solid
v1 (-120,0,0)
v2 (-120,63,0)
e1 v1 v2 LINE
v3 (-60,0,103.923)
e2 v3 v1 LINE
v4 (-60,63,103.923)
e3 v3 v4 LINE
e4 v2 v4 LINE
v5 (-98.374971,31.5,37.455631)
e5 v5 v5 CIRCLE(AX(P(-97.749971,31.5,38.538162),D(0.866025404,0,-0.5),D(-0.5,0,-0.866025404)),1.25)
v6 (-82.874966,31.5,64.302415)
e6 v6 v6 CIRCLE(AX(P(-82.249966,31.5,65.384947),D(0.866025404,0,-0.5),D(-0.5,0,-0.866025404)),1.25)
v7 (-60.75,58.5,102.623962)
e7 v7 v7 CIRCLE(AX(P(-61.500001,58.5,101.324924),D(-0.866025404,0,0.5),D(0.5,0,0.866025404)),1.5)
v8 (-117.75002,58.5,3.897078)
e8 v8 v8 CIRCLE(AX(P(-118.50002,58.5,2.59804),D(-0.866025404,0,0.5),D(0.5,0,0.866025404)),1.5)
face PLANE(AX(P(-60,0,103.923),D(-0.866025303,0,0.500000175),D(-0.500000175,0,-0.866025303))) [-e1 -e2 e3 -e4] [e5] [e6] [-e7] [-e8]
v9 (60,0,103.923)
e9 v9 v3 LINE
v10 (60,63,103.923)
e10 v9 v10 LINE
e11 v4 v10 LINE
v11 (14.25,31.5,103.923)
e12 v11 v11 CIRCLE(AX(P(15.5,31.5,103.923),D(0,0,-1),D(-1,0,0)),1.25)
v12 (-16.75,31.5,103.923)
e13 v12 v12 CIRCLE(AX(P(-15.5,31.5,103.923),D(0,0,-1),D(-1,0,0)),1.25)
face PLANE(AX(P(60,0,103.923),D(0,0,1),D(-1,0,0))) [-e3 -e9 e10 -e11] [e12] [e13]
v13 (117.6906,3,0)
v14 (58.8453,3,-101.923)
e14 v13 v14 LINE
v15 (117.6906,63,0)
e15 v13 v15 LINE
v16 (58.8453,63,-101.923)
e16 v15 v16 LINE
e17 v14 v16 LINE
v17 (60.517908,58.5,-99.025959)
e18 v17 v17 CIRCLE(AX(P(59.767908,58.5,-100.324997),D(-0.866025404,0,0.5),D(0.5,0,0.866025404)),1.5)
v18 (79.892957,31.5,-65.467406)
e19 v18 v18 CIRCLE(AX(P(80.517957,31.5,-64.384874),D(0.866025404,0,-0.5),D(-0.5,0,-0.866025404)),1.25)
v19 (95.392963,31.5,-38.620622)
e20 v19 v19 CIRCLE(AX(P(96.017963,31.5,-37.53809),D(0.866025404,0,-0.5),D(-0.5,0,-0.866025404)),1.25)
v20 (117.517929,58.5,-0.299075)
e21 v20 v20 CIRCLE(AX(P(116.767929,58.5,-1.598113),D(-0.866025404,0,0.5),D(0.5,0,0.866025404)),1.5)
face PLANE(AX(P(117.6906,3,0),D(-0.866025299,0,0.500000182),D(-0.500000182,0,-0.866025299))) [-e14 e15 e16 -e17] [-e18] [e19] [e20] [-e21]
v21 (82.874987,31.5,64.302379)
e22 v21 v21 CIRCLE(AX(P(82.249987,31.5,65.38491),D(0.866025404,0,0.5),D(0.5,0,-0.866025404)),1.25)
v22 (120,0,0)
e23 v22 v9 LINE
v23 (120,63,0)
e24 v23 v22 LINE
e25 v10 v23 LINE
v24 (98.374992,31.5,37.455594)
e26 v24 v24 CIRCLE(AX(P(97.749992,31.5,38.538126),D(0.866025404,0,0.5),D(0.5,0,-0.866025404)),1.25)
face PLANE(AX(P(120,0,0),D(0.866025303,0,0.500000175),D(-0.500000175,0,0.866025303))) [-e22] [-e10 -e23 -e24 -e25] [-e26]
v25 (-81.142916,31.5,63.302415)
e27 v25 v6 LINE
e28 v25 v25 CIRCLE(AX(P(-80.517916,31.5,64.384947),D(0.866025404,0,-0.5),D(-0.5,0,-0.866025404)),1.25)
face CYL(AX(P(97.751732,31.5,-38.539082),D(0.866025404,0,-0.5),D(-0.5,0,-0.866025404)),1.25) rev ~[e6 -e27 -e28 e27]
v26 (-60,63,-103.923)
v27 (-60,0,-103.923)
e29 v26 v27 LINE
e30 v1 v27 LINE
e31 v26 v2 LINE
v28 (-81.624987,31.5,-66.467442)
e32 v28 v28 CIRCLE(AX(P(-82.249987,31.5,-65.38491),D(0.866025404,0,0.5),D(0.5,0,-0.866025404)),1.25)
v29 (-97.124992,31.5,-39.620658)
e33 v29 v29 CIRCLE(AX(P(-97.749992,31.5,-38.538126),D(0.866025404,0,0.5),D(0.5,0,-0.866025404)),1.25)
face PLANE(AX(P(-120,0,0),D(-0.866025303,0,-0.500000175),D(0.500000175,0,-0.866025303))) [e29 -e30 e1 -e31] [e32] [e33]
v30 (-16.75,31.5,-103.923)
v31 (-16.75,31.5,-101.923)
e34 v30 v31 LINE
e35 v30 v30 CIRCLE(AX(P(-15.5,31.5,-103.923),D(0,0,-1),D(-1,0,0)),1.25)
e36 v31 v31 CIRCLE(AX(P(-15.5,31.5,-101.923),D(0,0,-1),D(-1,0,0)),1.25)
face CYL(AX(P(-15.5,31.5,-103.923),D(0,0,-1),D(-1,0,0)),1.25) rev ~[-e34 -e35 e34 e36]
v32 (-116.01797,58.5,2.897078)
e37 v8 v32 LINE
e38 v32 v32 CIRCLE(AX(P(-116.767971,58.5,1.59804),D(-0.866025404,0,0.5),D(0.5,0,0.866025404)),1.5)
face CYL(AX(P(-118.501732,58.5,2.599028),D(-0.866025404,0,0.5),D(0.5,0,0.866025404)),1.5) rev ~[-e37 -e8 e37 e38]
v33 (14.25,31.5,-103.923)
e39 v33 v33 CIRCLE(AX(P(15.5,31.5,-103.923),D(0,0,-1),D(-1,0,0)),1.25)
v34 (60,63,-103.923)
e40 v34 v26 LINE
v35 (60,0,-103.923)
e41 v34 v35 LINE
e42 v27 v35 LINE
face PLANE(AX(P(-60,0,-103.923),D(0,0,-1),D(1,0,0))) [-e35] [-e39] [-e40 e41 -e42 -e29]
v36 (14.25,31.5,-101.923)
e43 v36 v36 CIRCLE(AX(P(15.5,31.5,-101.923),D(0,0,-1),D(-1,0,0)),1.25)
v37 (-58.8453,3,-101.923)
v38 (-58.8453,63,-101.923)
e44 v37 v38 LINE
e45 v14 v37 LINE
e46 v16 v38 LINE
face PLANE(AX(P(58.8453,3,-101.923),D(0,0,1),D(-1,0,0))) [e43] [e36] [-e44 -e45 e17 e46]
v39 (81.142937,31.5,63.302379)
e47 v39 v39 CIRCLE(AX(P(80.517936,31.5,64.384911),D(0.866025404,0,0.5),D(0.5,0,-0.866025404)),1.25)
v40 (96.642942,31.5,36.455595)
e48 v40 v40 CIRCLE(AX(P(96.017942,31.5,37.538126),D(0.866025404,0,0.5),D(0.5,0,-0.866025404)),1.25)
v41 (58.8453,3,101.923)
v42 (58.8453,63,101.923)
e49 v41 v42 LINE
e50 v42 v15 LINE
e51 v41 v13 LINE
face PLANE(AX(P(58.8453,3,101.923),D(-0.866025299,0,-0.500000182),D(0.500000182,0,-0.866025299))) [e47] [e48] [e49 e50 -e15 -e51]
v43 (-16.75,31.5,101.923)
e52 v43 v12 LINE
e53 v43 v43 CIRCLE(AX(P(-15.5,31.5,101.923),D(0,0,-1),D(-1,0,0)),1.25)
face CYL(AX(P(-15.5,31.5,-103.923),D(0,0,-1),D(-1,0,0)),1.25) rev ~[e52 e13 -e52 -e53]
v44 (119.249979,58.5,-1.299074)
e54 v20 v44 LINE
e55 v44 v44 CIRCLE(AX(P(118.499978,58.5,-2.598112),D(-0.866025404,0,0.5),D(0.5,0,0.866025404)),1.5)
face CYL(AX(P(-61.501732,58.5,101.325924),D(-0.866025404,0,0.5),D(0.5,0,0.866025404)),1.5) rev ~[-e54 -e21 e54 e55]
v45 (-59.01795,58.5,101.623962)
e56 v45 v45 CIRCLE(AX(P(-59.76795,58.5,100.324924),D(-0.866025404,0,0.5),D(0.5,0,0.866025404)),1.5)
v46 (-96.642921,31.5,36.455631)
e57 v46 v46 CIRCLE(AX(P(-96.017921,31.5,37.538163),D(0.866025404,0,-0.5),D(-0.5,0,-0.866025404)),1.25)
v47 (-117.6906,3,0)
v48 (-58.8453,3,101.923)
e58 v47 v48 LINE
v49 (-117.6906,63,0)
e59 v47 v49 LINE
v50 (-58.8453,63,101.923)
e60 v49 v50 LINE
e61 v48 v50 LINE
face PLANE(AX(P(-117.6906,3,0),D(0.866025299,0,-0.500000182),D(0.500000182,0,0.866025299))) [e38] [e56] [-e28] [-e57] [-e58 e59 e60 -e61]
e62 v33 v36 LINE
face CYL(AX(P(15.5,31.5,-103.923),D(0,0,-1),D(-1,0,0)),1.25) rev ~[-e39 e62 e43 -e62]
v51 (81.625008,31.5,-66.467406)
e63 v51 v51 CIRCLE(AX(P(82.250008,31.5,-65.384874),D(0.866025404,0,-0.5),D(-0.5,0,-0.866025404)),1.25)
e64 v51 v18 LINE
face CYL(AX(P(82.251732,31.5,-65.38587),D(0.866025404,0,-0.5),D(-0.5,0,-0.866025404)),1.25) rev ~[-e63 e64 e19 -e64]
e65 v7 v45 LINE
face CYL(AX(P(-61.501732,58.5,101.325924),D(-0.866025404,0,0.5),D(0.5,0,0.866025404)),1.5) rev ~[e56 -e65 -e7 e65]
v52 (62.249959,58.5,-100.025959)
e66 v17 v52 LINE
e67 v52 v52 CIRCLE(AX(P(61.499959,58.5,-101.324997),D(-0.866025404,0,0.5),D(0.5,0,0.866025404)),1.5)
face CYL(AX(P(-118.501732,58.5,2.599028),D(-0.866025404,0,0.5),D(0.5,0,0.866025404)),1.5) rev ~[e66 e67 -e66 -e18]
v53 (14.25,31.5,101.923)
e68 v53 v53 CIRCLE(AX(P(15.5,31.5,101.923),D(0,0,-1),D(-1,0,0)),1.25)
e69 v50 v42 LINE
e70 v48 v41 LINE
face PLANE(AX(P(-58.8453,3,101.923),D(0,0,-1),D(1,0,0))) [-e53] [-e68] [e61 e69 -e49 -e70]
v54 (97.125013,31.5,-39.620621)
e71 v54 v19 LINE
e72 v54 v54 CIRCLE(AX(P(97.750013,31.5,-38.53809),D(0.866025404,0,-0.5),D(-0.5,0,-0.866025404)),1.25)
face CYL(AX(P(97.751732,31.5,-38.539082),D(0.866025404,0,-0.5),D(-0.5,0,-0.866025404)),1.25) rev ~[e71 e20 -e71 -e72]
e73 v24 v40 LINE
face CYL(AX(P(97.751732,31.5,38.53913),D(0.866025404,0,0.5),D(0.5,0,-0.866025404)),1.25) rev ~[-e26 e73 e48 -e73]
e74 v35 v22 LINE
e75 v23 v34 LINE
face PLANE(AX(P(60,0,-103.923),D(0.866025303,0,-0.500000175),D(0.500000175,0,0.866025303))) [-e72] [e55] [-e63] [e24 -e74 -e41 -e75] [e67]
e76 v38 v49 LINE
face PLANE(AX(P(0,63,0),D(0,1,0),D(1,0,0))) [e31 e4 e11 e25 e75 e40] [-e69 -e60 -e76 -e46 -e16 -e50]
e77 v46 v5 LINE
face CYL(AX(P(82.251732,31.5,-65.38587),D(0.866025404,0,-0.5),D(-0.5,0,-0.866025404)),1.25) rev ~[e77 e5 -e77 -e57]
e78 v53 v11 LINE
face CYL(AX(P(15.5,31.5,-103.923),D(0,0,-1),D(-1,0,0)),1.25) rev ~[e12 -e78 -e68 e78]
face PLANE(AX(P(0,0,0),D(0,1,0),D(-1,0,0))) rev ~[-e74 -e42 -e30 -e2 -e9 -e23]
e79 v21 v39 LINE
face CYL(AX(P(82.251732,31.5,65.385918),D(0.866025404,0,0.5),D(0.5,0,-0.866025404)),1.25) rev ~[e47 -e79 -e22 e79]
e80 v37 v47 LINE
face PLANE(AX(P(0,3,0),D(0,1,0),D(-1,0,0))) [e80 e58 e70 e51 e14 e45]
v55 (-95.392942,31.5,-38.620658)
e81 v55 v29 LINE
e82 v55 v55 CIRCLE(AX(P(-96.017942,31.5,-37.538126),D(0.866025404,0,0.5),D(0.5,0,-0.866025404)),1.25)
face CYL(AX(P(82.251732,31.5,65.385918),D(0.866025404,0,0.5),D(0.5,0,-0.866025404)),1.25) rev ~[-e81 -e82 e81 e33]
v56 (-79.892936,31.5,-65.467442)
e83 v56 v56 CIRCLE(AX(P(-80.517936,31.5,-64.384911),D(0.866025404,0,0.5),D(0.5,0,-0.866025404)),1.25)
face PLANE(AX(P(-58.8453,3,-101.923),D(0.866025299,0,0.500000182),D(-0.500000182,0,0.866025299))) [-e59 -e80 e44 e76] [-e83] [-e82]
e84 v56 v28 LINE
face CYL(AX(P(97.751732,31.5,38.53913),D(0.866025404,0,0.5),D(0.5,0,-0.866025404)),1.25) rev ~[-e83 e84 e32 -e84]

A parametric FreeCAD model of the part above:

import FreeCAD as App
import Part
import Sketcher
from FreeCAD import Vector
Q = App.Units.Quantity

doc = App.newDocument("Part")
body = doc.addObject("PartDesign::Body", "Body")

# Sketch on XZ plane
sketch1 = body.newObject("Sketcher::SketchObject", "Sketch")
sketch1.AttachmentSupport = (doc.getObject("XZ_Plane"), [""])
sketch1.MapMode = "FlatFace"
sketch1.addGeometry([
    Part.LineSegment(Vector(-60, -104, 0), Vector(-120, 0, 0)),  # 0
    Part.LineSegment(Vector(-120, 0, 0), Vector(-60, 104, 0)),  # 1
    Part.LineSegment(Vector(-60, 104, 0), Vector(60, 104, 0)),  # 2
    Part.LineSegment(Vector(60, 104, 0), Vector(120, 0, 0)),  # 3
    Part.LineSegment(Vector(120, 0, 0), Vector(60, -104, 0)),  # 4
    Part.LineSegment(Vector(60, -104, 0), Vector(-60, -104, 0)),  # 5
], False)
sketch1.addConstraint([
    Sketcher.Constraint("Coincident", 0, 2, 1, 1),
    Sketcher.Constraint("Coincident", 1, 2, 2, 1),
    Sketcher.Constraint("Coincident", 2, 2, 3, 1),
    Sketcher.Constraint("Coincident", 3, 2, 4, 1),
    Sketcher.Constraint("Coincident", 4, 2, 5, 1),
    Sketcher.Constraint("Coincident", 5, 2, 0, 1),
    Sketcher.Constraint("Horizontal", 2),
    Sketcher.Constraint("Horizontal", 5),
    Sketcher.Constraint("Symmetric", 0, 2, 3, 2, -1, 1),
    Sketcher.Constraint("Symmetric", 1, 2, 4, 2, -1, 1),
    Sketcher.Constraint("PointOnObject", 0, 2, -1),
    Sketcher.Constraint("Parallel", 0, 3),
    Sketcher.Constraint("Vertical", 2, 2, 4, 2),
    Sketcher.Constraint("DistanceX", 2, 1, 2, 2, 120.0),
    Sketcher.Constraint("Angle", 0, Q("120 deg")),
    Sketcher.Constraint("Distance", 0, 120.0),
])
pad1 = body.newObject("PartDesign::Pad", "Pad")
pad1.Profile = sketch1
pad1.Length = 3
pad1.Reversed = True

# Sketch on XZ plane
sketch2 = body.newObject("Sketcher::SketchObject", "Sketch001")
sketch2.AttachmentSupport = (doc.getObject("XZ_Plane"), [""])
sketch2.MapMode = "FlatFace"
sketch2.AttachmentOffset = App.Placement(Vector(0, 0, -3), App.Rotation())
sketch2.addGeometry([
    Part.LineSegment(Vector(-120, 0, 0), Vector(-60, 104, 0)),  # 0
    Part.LineSegment(Vector(-60, 104, 0), Vector(60, 104, 0)),  # 1
    Part.LineSegment(Vector(60, 104, 0), Vector(120, 0, 0)),  # 2
    Part.LineSegment(Vector(120, 0, 0), Vector(60, -104, 0)),  # 3
    Part.LineSegment(Vector(60, -104, 0), Vector(-60, -104, 0)),  # 4
    Part.LineSegment(Vector(-60, -104, 0), Vector(-120, 0, 0)),  # 5
    Part.LineSegment(Vector(59, 102, 0), Vector(-59, 102, 0)),  # 6
    Part.LineSegment(Vector(-59, 102, 0), Vector(-118, 0, 0)),  # 7
    Part.LineSegment(Vector(-118, 0, 0), Vector(-59, -102, 0)),  # 8
    Part.LineSegment(Vector(-59, -102, 0), Vector(59, -102, 0)),  # 9
    Part.LineSegment(Vector(59, -102, 0), Vector(118, 0, 0)),  # 10
    Part.LineSegment(Vector(118, 0, 0), Vector(59, 102, 0)),  # 11
], False)
sketch2.addConstraint([
    Sketcher.Constraint("Coincident", 0, 2, 1, 1),
    Sketcher.Constraint("Coincident", 1, 2, 2, 1),
    Sketcher.Constraint("Coincident", 2, 2, 3, 1),
    Sketcher.Constraint("Coincident", 3, 2, 4, 1),
    Sketcher.Constraint("Coincident", 4, 2, 5, 1),
    Sketcher.Constraint("Coincident", 5, 2, 0, 1),
    Sketcher.Constraint("Coincident", 6, 2, 7, 1),
    Sketcher.Constraint("Coincident", 7, 2, 8, 1),
    Sketcher.Constraint("Coincident", 8, 2, 9, 1),
    Sketcher.Constraint("Coincident", 9, 2, 10, 1),
    Sketcher.Constraint("Coincident", 10, 2, 11, 1),
    Sketcher.Constraint("Coincident", 11, 2, 6, 1),
    Sketcher.Constraint("Horizontal", 1),
    Sketcher.Constraint("Horizontal", 4),
    Sketcher.Constraint("Horizontal", 6),
    Sketcher.Constraint("Horizontal", 9),
    Sketcher.Constraint("Symmetric", 0, 2, 3, 2, -1, 1),
    Sketcher.Constraint("Symmetric", 2, 2, 5, 2, -1, 1),
    Sketcher.Constraint("Symmetric", 6, 2, 9, 2, -1, 1),
    Sketcher.Constraint("Symmetric", 7, 2, 10, 2, -1, 1),
    Sketcher.Constraint("PointOnObject", 2, 2, -1),
    Sketcher.Constraint("PointOnObject", 7, 2, -1),
    Sketcher.Constraint("Parallel", 2, 5),
    Sketcher.Constraint("Parallel", 3, 7),
    Sketcher.Constraint("Parallel", 5, 8),
    Sketcher.Constraint("Parallel", 8, 11),
    Sketcher.Constraint("Vertical", 1, 2, 3, 2),
    Sketcher.Constraint("DistanceY", 6, 2, 0, 2, 2.0),
    Sketcher.Constraint("DistanceX", 1, 1, 1, 2, 120.0),
    Sketcher.Constraint("Angle", 0, Q("60 deg")),
    Sketcher.Constraint("Distance", 0, 120.0),
    Sketcher.Constraint("DistanceX", 6, 2, 6, 1, 117.6906),
])
pad2 = body.newObject("PartDesign::Pad", "Pad001")
pad2.Profile = sketch2
pad2.Length = 60
pad2.Reversed = True

# Sketch on an angled plane
sketch3 = body.newObject("Sketcher::SketchObject", "Sketch002")
sketch3.Placement = App.Placement(Vector(-60, 0, 103.923), App.Rotation(Vector(0.5, 0, 0.866025404), Vector(0, 1, 0), Vector(-0.866025404, 0, 0.5), "ZXY"))
sketch3.addGeometry([
    Part.Circle(Vector(-117, 58.5, 0), Vector(0, 0, 1), 1.5),
    Part.Circle(Vector(-3, 58.5, 0), Vector(0, 0, 1), 1.5),
], False)
sketch3.addConstraint([
    Sketcher.Constraint("Equal", 0, 1),
    Sketcher.Constraint("Horizontal", 0, 3, 1, 3),
    Sketcher.Constraint("Diameter", 0, 3.0),
    Sketcher.Constraint("DistanceX", 0, 3, -1, 1, 117.0),
    Sketcher.Constraint("DistanceX", 1, 3, -1, 1, 3.0),
    Sketcher.Constraint("DistanceY", -1, 1, 0, 3, 58.5),
])
pocket1 = body.newObject("PartDesign::Pocket", "Pocket")
pocket1.Profile = sketch3
pocket1.Length = 220

# Sketch on XY plane
sketch4 = body.newObject("Sketcher::SketchObject", "Sketch003")
sketch4.AttachmentSupport = (doc.getObject("XY_Plane"), [""])
sketch4.MapMode = "FlatFace"
sketch4.AttachmentOffset = App.Placement(Vector(0, 0, -103.923), App.Rotation())
sketch4.addGeometry([
    Part.Circle(Vector(15.5, 31.5, 0), Vector(0, 0, 1), 1.2),
    Part.Circle(Vector(-15.5, 31.5, 0), Vector(0, 0, 1), 1.2),
], False)
sketch4.addConstraint([
    Sketcher.Constraint("Equal", 0, 1),
    Sketcher.Constraint("Symmetric", 0, 3, 1, 3, -2),
    Sketcher.Constraint("Diameter", 0, 2.5),
    Sketcher.Constraint("DistanceX", 1, 3, 0, 3, 31.0),
    Sketcher.Constraint("DistanceY", -1, 1, 0, 3, 31.5),
])
pocket2 = body.newObject("PartDesign::Pocket", "Pocket001")
pocket2.Profile = sketch4
pocket2.Length = 220
pocket2.Reversed = True

# Sketch on an angled plane
sketch5 = body.newObject("Sketcher::SketchObject", "Sketch004")
sketch5.Placement = App.Placement(Vector(60, 0, -103.923), App.Rotation(Vector(-0.5, 0, -0.866025404), Vector(0, 1, 0), Vector(0.866025404, 0, -0.5), "ZXY"))
sketch5.addGeometry([
    Part.Circle(Vector(-75.5, 31.5, 0), Vector(0, 0, 1), 1.2),
    Part.Circle(Vector(-44.5, 31.5, 0), Vector(0, 0, 1), 1.2),
], False)
sketch5.addConstraint([
    Sketcher.Constraint("Equal", 0, 1),
    Sketcher.Constraint("Horizontal", 0, 3, 1, 3),
    Sketcher.Constraint("Diameter", 0, 2.5),
    Sketcher.Constraint("DistanceX", 0, 3, 1, 3, 31.0),
    Sketcher.Constraint("DistanceX", 0, 3, -1, 1, 75.5),
    Sketcher.Constraint("DistanceY", -1, 1, 0, 3, 31.5),
])
pocket3 = body.newObject("PartDesign::Pocket", "Pocket002")
pocket3.Profile = sketch5
pocket3.Length = 220

# Sketch on an angled plane
sketch6 = body.newObject("Sketcher::SketchObject", "Sketch005")
sketch6.Placement = App.Placement(Vector(120, 0, 0), App.Rotation(Vector(0.5, 0, -0.866025404), Vector(0, 1, 0), Vector(0.866025404, 0, 0.5), "ZXY"))
sketch6.addGeometry([
    Part.Circle(Vector(-75.5, 31.5, 0), Vector(0, 0, 1), 1.2),
    Part.Circle(Vector(-44.5, 31.5, 0), Vector(0, 0, 1), 1.2),
], False)
sketch6.addConstraint([
    Sketcher.Constraint("Equal", 0, 1),
    Sketcher.Constraint("Horizontal", 0, 3, 1, 3),
    Sketcher.Constraint("Diameter", 0, 2.5),
    Sketcher.Constraint("DistanceX", 0, 3, 1, 3, 31.0),
    Sketcher.Constraint("DistanceX", 0, 3, -1, 1, 75.5),
    Sketcher.Constraint("DistanceY", -1, 1, 0, 3, 31.5),
])
pocket4 = body.newObject("PartDesign::Pocket", "Pocket003")
pocket4.Profile = sketch6
pocket4.Length = 220

doc.recompute()
